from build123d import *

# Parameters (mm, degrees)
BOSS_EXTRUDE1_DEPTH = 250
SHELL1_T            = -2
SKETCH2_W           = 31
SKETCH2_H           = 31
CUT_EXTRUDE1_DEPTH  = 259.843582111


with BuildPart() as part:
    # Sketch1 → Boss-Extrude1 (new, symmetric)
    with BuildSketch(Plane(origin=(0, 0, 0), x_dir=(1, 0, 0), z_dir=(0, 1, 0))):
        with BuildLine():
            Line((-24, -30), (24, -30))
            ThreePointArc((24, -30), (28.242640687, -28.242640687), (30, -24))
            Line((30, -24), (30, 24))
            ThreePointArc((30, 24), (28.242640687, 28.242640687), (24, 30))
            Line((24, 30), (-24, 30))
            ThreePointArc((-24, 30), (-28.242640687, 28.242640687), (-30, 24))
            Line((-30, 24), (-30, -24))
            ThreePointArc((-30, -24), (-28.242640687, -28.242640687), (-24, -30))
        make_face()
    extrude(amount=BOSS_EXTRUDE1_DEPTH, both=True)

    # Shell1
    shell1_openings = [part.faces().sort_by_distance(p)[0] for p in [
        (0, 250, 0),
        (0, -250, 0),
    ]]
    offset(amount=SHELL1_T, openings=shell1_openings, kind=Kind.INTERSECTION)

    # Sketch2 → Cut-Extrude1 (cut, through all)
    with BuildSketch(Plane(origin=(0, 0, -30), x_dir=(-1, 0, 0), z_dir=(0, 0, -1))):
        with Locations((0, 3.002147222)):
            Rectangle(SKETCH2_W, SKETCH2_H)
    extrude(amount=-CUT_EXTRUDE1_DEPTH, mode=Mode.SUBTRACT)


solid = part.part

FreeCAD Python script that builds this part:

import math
import FreeCAD as App
import Part
import Sketcher

V = App.Vector


def faces_at(feature, points):
    """Names of the faces that lie closest to the given points."""
    faces = feature.Shape.Faces
    near = lambda p: min(range(len(faces)), key=lambda i: faces[i].distToShape(Part.Vertex(*p))[0])
    return sorted({f"Face{near(p) + 1}" for p in points})


def add_polygon(sketch, points):
    """Adds a closed chain of lines whose ends are joined by coincident constraints."""
    first, n = sketch.GeometryCount, len(points)
    for a, b in zip(points, points[1:] + points[:1]):
        sketch.addGeometry(Part.LineSegment(App.Vector(*a, 0), App.Vector(*b, 0)), False)
    for i in range(n):
        sketch.addConstraint(Sketcher.Constraint("Coincident", first + i, 2, first + (i + 1) % n, 1))

doc = App.newDocument("Part")
body = doc.addObject("PartDesign::Body", "Body")

sketch1 = body.newObject("Sketcher::SketchObject", "Sketch")
sketch1.AttachmentSupport = (doc.getObject("XZ_Plane"), [""])
sketch1.MapMode = "FlatFace"
sketch1.addGeometry([
    Part.LineSegment(V(-24, 30, 0), V(24, 30, 0)),
    Part.ArcOfCircle(Part.Circle(V(24, 24, 0), V(0, 0, 1), 6), math.radians(0), math.radians(90)),
    Part.LineSegment(V(30, 24, 0), V(30, -24, 0)),
    Part.ArcOfCircle(Part.Circle(V(24, -24, 0), V(0, 0, 1), 6), math.radians(-90), math.radians(0)),
    Part.LineSegment(V(24, -30, 0), V(-24, -30, 0)),
    Part.ArcOfCircle(Part.Circle(V(-24, -24, 0), V(0, 0, 1), 6), math.radians(180), math.radians(270)),
    Part.LineSegment(V(-30, -24, 0), V(-30, 24, 0)),
    Part.ArcOfCircle(Part.Circle(V(-24, 24, 0), V(0, 0, 1), 6), math.radians(90), math.radians(180)),
], False)
sketch1.addConstraint([
    Sketcher.Constraint("Tangent", 0, 2, 1, 2),
    Sketcher.Constraint("Tangent", 1, 1, 2, 1),
    Sketcher.Constraint("Tangent", 2, 2, 3, 2),
    Sketcher.Constraint("Tangent", 3, 1, 4, 1),
    Sketcher.Constraint("Tangent", 4, 2, 5, 2),
    Sketcher.Constraint("Tangent", 5, 1, 6, 1),
    Sketcher.Constraint("Tangent", 6, 2, 7, 2),
    Sketcher.Constraint("Tangent", 7, 1, 0, 1),
    Sketcher.Constraint("Horizontal", 0),
    Sketcher.Constraint("Vertical", 2),
    Sketcher.Constraint("Horizontal", 4),
    Sketcher.Constraint("Vertical", 6),
    Sketcher.Constraint("Equal", 1, 3),
    Sketcher.Constraint("Equal", 3, 5),
    Sketcher.Constraint("Equal", 5, 7),
    Sketcher.Constraint("Symmetric", 1, 3, 5, 3, -1, 1),
    Sketcher.Constraint("Equal", 4, 2),
    Sketcher.Constraint("Radius", 1, 6.0),
    Sketcher.Constraint("DistanceX", 0, 1, 0, 2, 48.0),
])
pad1 = body.newObject("PartDesign::Pad", "Pad")
pad1.Profile = sketch1
pad1.Length = 500
pad1.Midplane = True
doc.recompute()

thickness = body.newObject("PartDesign::Thickness", "Thickness")
thickness.Base = (pad1, faces_at(pad1, [(0, 250, 0), (0, -250, 0)]))
thickness.Value = 2
thickness.Reversed = True
thickness.Join = "Intersection"

sketch2 = body.newObject("Sketcher::SketchObject", "Sketch001")
sketch2.AttachmentSupport = (doc.getObject("XY_Plane"), [""])
sketch2.MapMode = "FlatFace"
sketch2.AttachmentOffset = App.Placement(V(0, 0, -30), App.Rotation())
add_polygon(sketch2, [(16, 19), (16, -12), (-16, -12), (-16, 19)])
sketch2.addConstraint([
    Sketcher.Constraint("Vertical", 0),
    Sketcher.Constraint("Horizontal", 1),
    Sketcher.Constraint("Vertical", 2),
    Sketcher.Constraint("Horizontal", 3),
    Sketcher.Constraint("Equal", 3, 0),
    Sketcher.Constraint("DistanceX", 1, 2, 1, 1, 31.0),
    Sketcher.Constraint("DistanceX", -1, 1, 0, 2, 15.5),
    Sketcher.Constraint("DistanceY", 0, 2, -1, 1, 12.497853),
])
pocket1 = body.newObject("PartDesign::Pocket", "Pocket")
pocket1.Profile = sketch2
pocket1.Type = "ThroughAll"
pocket1.Reversed = True

doc.recompute()
